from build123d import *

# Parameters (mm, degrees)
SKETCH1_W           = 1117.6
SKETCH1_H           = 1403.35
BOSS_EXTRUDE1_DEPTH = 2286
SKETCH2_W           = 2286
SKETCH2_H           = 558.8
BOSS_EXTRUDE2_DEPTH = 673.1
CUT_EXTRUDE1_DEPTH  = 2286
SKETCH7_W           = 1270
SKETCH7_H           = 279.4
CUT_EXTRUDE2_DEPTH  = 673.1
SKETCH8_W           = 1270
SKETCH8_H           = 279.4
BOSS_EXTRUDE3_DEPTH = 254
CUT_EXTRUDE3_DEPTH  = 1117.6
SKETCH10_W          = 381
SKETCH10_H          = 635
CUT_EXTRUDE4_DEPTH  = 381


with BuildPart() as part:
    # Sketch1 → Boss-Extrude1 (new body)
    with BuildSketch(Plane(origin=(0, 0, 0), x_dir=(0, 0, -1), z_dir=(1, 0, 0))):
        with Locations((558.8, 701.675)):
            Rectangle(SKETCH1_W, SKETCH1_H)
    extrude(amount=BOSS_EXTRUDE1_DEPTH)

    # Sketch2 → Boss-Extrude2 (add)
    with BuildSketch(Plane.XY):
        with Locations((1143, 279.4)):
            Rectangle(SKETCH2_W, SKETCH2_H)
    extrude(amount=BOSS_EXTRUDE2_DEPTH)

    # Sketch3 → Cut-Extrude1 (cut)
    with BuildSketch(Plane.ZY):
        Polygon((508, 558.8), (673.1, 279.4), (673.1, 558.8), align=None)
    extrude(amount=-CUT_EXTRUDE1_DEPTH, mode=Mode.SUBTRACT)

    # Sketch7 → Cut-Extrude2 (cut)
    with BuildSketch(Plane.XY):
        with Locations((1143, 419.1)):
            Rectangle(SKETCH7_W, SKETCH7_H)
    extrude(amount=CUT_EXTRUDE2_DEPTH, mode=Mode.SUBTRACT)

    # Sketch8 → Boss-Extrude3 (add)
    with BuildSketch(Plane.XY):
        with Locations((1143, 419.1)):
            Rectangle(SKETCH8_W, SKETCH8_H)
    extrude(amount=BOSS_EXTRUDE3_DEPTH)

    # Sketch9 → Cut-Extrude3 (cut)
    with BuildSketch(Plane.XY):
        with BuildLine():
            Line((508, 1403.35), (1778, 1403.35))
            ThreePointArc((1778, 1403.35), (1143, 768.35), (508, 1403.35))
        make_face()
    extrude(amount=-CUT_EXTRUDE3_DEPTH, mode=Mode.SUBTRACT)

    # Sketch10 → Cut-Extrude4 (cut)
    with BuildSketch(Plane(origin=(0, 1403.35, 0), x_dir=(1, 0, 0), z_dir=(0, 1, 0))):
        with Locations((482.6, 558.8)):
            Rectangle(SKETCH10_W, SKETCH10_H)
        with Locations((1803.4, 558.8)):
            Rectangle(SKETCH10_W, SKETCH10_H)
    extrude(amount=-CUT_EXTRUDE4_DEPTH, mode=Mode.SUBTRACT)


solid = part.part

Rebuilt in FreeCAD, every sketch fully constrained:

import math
import FreeCAD as App
import Part
import Sketcher
from FreeCAD import Vector
Q = App.Units.Quantity

doc = App.newDocument("Part")
body = doc.addObject("PartDesign::Body", "Body")

# Sketch on YZ plane
sketch1 = body.newObject("Sketcher::SketchObject", "Sketch")
sketch1.AttachmentSupport = (doc.getObject("YZ_Plane"), [""])
sketch1.MapMode = "FlatFace"
sketch1.addGeometry([
    Part.LineSegment(Vector(1403.35, 0, 0), Vector(0, 0, 0)),
    Part.LineSegment(Vector(0, 0, 0), Vector(0, -1117.6, 0)),
    Part.LineSegment(Vector(0, -1117.6, 0), Vector(1403.35, -1117.6, 0)),
    Part.LineSegment(Vector(1403.35, -1117.6, 0), Vector(1403.35, 0, 0)),
], False)
sketch1.addConstraint([
    Sketcher.Constraint("Coincident", 0, 2, 1, 1),
    Sketcher.Constraint("Coincident", 1, 2, 2, 1),
    Sketcher.Constraint("Coincident", 2, 2, 3, 1),
    Sketcher.Constraint("Coincident", 3, 2, 0, 1),
    Sketcher.Constraint("Horizontal", 0),
    Sketcher.Constraint("Vertical", 1),
    Sketcher.Constraint("Horizontal", 2),
    Sketcher.Constraint("Vertical", 3),
    Sketcher.Constraint("Coincident", 0, 2, -1, 1),
    Sketcher.Constraint("DistanceY", 1, 2, 1, 1, Q("44 in")),
    Sketcher.Constraint("DistanceX", 0, 2, 0, 1, Q("55.25 in")),
])
pad1 = body.newObject("PartDesign::Pad", "Pad")
pad1.Profile = sketch1
pad1.Length = Q("90 in")

# Sketch on XY plane
sketch2 = body.newObject("Sketcher::SketchObject", "Sketch001")
sketch2.AttachmentSupport = (doc.getObject("XY_Plane"), [""])
sketch2.MapMode = "FlatFace"
sketch2.addGeometry([
    Part.LineSegment(Vector(0, 558.8, 0), Vector(0, 0, 0)),
    Part.LineSegment(Vector(0, 0, 0), Vector(2286, 0, 0)),
    Part.LineSegment(Vector(2286, 0, 0), Vector(2286, 558.8, 0)),
    Part.LineSegment(Vector(2286, 558.8, 0), Vector(0, 558.8, 0)),
], False)
sketch2.addConstraint([
    Sketcher.Constraint("Coincident", 0, 2, 1, 1),
    Sketcher.Constraint("Coincident", 1, 2, 2, 1),
    Sketcher.Constraint("Coincident", 2, 2, 3, 1),
    Sketcher.Constraint("Coincident", 3, 2, 0, 1),
    Sketcher.Constraint("Vertical", 0),
    Sketcher.Constraint("Horizontal", 1),
    Sketcher.Constraint("Vertical", 2),
    Sketcher.Constraint("Horizontal", 3),
    Sketcher.Constraint("Coincident", 0, 2, -1, 1),
    Sketcher.Constraint("DistanceX", 1, 1, 1, 2, Q("90 in")),
    Sketcher.Constraint("DistanceY", 0, 2, 0, 1, Q("22 in")),
])
pad2 = body.newObject("PartDesign::Pad", "Pad001")
pad2.Profile = sketch2
pad2.Length = Q("26.5 in")

# Sketch on YZ plane
sketch3 = body.newObject("Sketcher::SketchObject", "Sketch002")
sketch3.AttachmentSupport = (doc.getObject("YZ_Plane"), [""])
sketch3.MapMode = "FlatFace"
sketch3.addGeometry([
    Part.LineSegment(Vector(558.8, 508, 0), Vector(279.4, 673.1, 0)),
    Part.LineSegment(Vector(279.4, 673.1, 0), Vector(558.8, 673.1, 0)),
    Part.LineSegment(Vector(558.8, 673.1, 0), Vector(558.8, 508, 0)),
], False)
sketch3.addConstraint([
    Sketcher.Constraint("Coincident", 0, 2, 1, 1),
    Sketcher.Constraint("Coincident", 1, 2, 2, 1),
    Sketcher.Constraint("Coincident", 2, 2, 0, 1),
    Sketcher.Constraint("Horizontal", 1),
    Sketcher.Constraint("Vertical", 2),
    Sketcher.Constraint("DistanceX", 1, 1, 1, 2, Q("11 in")),
    Sketcher.Constraint("DistanceY", 2, 2, 2, 1, Q("6.5 in")),
    Sketcher.Constraint("DistanceX", -1, 1, 0, 2, Q("11 in")),
    Sketcher.Constraint("DistanceY", -1, 1, 2, 2, Q("20 in")),
])
pocket1 = body.newObject("PartDesign::Pocket", "Pocket")
pocket1.Profile = sketch3
pocket1.Length = Q("90 in")
pocket1.Reversed = True

# Sketch on XY plane
sketch4 = body.newObject("Sketcher::SketchObject", "Sketch003")
sketch4.AttachmentSupport = (doc.getObject("XY_Plane"), [""])
sketch4.MapMode = "FlatFace"
sketch4.addGeometry([
    Part.LineSegment(Vector(508, 558.8, 0), Vector(508, 279.4, 0)),
    Part.LineSegment(Vector(508, 279.4, 0), Vector(1778, 279.4, 0)),
    Part.LineSegment(Vector(1778, 279.4, 0), Vector(1778, 558.8, 0)),
    Part.LineSegment(Vector(1778, 558.8, 0), Vector(508, 558.8, 0)),
], False)
sketch4.addConstraint([
    Sketcher.Constraint("Coincident", 0, 2, 1, 1),
    Sketcher.Constraint("Coincident", 1, 2, 2, 1),
    Sketcher.Constraint("Coincident", 2, 2, 3, 1),
    Sketcher.Constraint("Coincident", 3, 2, 0, 1),
    Sketcher.Constraint("Vertical", 0),
    Sketcher.Constraint("Horizontal", 1),
    Sketcher.Constraint("Vertical", 2),
    Sketcher.Constraint("Horizontal", 3),
    Sketcher.Constraint("DistanceX", 1, 1, 1, 2, Q("50 in")),
    Sketcher.Constraint("DistanceY", 0, 2, 0, 1, Q("11 in")),
    Sketcher.Constraint("DistanceX", -1, 1, 0, 2, Q("20 in")),
    Sketcher.Constraint("DistanceY", -1, 1, 0, 2, Q("11 in")),
])
pocket2 = body.newObject("PartDesign::Pocket", "Pocket001")
pocket2.Profile = sketch4
pocket2.Length = Q("26.5 in")
pocket2.Reversed = True

# Sketch on XY plane
sketch5 = body.newObject("Sketcher::SketchObject", "Sketch004")
sketch5.AttachmentSupport = (doc.getObject("XY_Plane"), [""])
sketch5.MapMode = "FlatFace"
sketch5.addGeometry([
    Part.LineSegment(Vector(508, 558.8, 0), Vector(508, 279.4, 0)),
    Part.LineSegment(Vector(508, 279.4, 0), Vector(1778, 279.4, 0)),
    Part.LineSegment(Vector(1778, 279.4, 0), Vector(1778, 558.8, 0)),
    Part.LineSegment(Vector(1778, 558.8, 0), Vector(508, 558.8, 0)),
], False)
sketch5.addConstraint([
    Sketcher.Constraint("Coincident", 0, 2, 1, 1),
    Sketcher.Constraint("Coincident", 1, 2, 2, 1),
    Sketcher.Constraint("Coincident", 2, 2, 3, 1),
    Sketcher.Constraint("Coincident", 3, 2, 0, 1),
    Sketcher.Constraint("Vertical", 0),
    Sketcher.Constraint("Horizontal", 1),
    Sketcher.Constraint("Vertical", 2),
    Sketcher.Constraint("Horizontal", 3),
    Sketcher.Constraint("DistanceX", 1, 1, 1, 2, Q("50 in")),
    Sketcher.Constraint("DistanceY", 0, 2, 0, 1, Q("11 in")),
    Sketcher.Constraint("DistanceX", -1, 1, 0, 2, Q("20 in")),
    Sketcher.Constraint("DistanceY", -1, 1, 0, 2, Q("11 in")),
])
pad3 = body.newObject("PartDesign::Pad", "Pad002")
pad3.Profile = sketch5
pad3.Length = Q("10 in")

# Sketch on XY plane
sketch6 = body.newObject("Sketcher::SketchObject", "Sketch005")
sketch6.AttachmentSupport = (doc.getObject("XY_Plane"), [""])
sketch6.MapMode = "FlatFace"
sketch6.addGeometry([
    Part.LineSegment(Vector(1778, 1403.35, 0), Vector(508, 1403.35, 0)),
    Part.ArcOfCircle(Part.Circle(Vector(1143, 1403.35, 0), Vector(0, 0, 1), 635), math.radians(180), math.radians(360)),
], False)
sketch6.addConstraint([
    Sketcher.Constraint("Coincident", 0, 1, 1, 2),
    Sketcher.Constraint("Coincident", 1, 1, 0, 2),
    Sketcher.Constraint("Horizontal", 0),
    Sketcher.Constraint("Horizontal", 1, 3, 0, 1),
    Sketcher.Constraint("Radius", 1, Q("25 in")),
    Sketcher.Constraint("DistanceX", -1, 1, 1, 3, Q("45 in")),
    Sketcher.Constraint("DistanceY", -1, 1, 1, 3, Q("55.25 in")),
])
pocket3 = body.newObject("PartDesign::Pocket", "Pocket002")
pocket3.Profile = sketch6
pocket3.Length = Q("44 in")

# Sketch on XZ plane
sketch7 = body.newObject("Sketcher::SketchObject", "Sketch006")
sketch7.AttachmentSupport = (doc.getObject("XZ_Plane"), [""])
sketch7.MapMode = "FlatFace"
sketch7.AttachmentOffset = App.Placement(Vector(0, 0, -55.25 * 25.4), App.Rotation())
sketch7.addGeometry([
    Part.LineSegment(Vector(292.1, -876.3, 0), Vector(292.1, -241.3, 0)),  # 0
    Part.LineSegment(Vector(292.1, -241.3, 0), Vector(673.1, -241.3, 0)),  # 1
    Part.LineSegment(Vector(673.1, -241.3, 0), Vector(673.1, -876.3, 0)),  # 2
    Part.LineSegment(Vector(673.1, -876.3, 0), Vector(292.1, -876.3, 0)),  # 3
    Part.LineSegment(Vector(1612.9, -876.3, 0), Vector(1612.9, -241.3, 0)),  # 4
    Part.LineSegment(Vector(1612.9, -241.3, 0), Vector(1993.9, -241.3, 0)),  # 5
    Part.LineSegment(Vector(1993.9, -241.3, 0), Vector(1993.9, -876.3, 0)),  # 6
    Part.LineSegment(Vector(1993.9, -876.3, 0), Vector(1612.9, -876.3, 0)),  # 7
], False)
sketch7.addConstraint([
    Sketcher.Constraint("Coincident", 0, 2, 1, 1),
    Sketcher.Constraint("Coincident", 1, 2, 2, 1),
    Sketcher.Constraint("Coincident", 2, 2, 3, 1),
    Sketcher.Constraint("Coincident", 3, 2, 0, 1),
    Sketcher.Constraint("Coincident", 4, 2, 5, 1),
    Sketcher.Constraint("Coincident", 5, 2, 6, 1),
    Sketcher.Constraint("Coincident", 6, 2, 7, 1),
    Sketcher.Constraint("Coincident", 7, 2, 4, 1),
    Sketcher.Constraint("Vertical", 0),
    Sketcher.Constraint("Horizontal", 1),
    Sketcher.Constraint("Vertical", 2),
    Sketcher.Constraint("Horizontal", 3),
    Sketcher.Constraint("Vertical", 4),
    Sketcher.Constraint("Horizontal", 5),
    Sketcher.Constraint("Vertical", 6),
    Sketcher.Constraint("Horizontal", 7),
    Sketcher.Constraint("Horizontal", 1, 2, 4, 2),
    Sketcher.Constraint("Horizontal", 3, 2, 6, 2),
    Sketcher.Constraint("Equal", 3, 5),
    Sketcher.Constraint("DistanceX", 1, 1, 1, 2, Q("15 in")),
    Sketcher.Constraint("DistanceY", 0, 1, 0, 2, Q("25 in")),
    Sketcher.Constraint("DistanceX", 1, 2, 4, 2, Q("37 in")),
    Sketcher.Constraint("DistanceX", -1, 1, 0, 2, Q("11.5 in")),
    Sketcher.Constraint("DistanceY", 0, 2, -1, 1, Q("9.5 in")),
])
pocket4 = body.newObject("PartDesign::Pocket", "Pocket003")
pocket4.Profile = sketch7
pocket4.Length = Q("15 in")
pocket4.Reversed = True

doc.recompute()
